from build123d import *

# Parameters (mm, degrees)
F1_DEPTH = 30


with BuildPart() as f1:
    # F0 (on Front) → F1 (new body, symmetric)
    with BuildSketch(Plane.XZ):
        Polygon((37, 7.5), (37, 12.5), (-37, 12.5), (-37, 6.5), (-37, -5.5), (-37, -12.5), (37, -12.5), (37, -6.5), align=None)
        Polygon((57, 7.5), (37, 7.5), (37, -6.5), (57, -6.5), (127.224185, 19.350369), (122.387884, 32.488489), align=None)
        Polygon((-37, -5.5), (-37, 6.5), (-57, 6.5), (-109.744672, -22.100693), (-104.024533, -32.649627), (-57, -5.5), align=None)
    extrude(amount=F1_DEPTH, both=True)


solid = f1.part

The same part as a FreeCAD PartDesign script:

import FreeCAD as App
import Part
import Sketcher

V = App.Vector
Q = App.Units.Quantity


def add_polygon(sketch, points):
    """Adds a closed chain of lines whose ends are joined by coincident constraints."""
    first, n = sketch.GeometryCount, len(points)
    for a, b in zip(points, points[1:] + points[:1]):
        sketch.addGeometry(Part.LineSegment(App.Vector(*a, 0), App.Vector(*b, 0)), False)
    for i in range(n):
        sketch.addConstraint(Sketcher.Constraint("Coincident", first + i, 2, first + (i + 1) % n, 1))

doc = App.newDocument("Part")
body = doc.addObject("PartDesign::Body", "Body")

# Sketch on XZ plane
sketch1 = body.newObject("Sketcher::SketchObject", "Sketch")
sketch1.AttachmentSupport = (doc.getObject("XZ_Plane"), [""])
sketch1.MapMode = "FlatFace"
add_polygon(sketch1, [(37, 12.5), (-37, 12.5), (-37, 6.5), (-57, 6.5), (-109.744672, -22.100693), (-104.024533, -32.649627), (-57, -5.5), (-37, -5.5), (-37, -12.5), (37, -12.5), (37, -6.5), (57, -6.5), (127.224185, 19.350369), (122.387884, 32.488489), (57, 7.5), (37, 7.5)])  # lines 0-15
sketch1.addConstraint([
    Sketcher.Constraint("Horizontal", 0),
    Sketcher.Constraint("Vertical", 1),
    Sketcher.Constraint("Horizontal", 2),
    Sketcher.Constraint("Horizontal", 6),
    Sketcher.Constraint("Vertical", 7),
    Sketcher.Constraint("Horizontal", 8),
    Sketcher.Constraint("Vertical", 9),
    Sketcher.Constraint("Horizontal", 10),
    Sketcher.Constraint("Horizontal", 14),
    Sketcher.Constraint("Vertical", 15),
    Sketcher.Constraint("Symmetric", 0, 2, 8, 2, -1, 1),
    Sketcher.Constraint("Symmetric", 2, 2, 10, 2, -1, 1),
    Sketcher.Constraint("Perpendicular", 3, 4),
    Sketcher.Constraint("Perpendicular", 11, 12),
    Sketcher.Constraint("Vertical", 2, 2, 5, 2),
    Sketcher.Constraint("Vertical", 1, 2, 6, 2),
    Sketcher.Constraint("Vertical", 10, 2, 13, 2),
    Sketcher.Constraint("Vertical", 9, 2, 14, 2),
    Sketcher.Constraint("DistanceX", 0, 2, 0, 1, 74.0),
    Sketcher.Constraint("DistanceX", 2, 2, 2, 1, 20.0),
    Sketcher.Constraint("DistanceY", 1, 2, 1, 1, 6.0),
    Sketcher.Constraint("DistanceY", 7, 2, 7, 1, 7.0),
    Sketcher.Constraint("DistanceY", 15, 1, 15, 2, 5.0),
    Sketcher.Constraint("Angle", 5, Q("30 deg")),
    Sketcher.Constraint("Distance", 3, 60.000001),
    Sketcher.Constraint("Distance", 4, 12.0),
    Sketcher.Constraint("Distance", 12, 14.0),
    Sketcher.Constraint("Distance", 13, 70.0),
    Sketcher.Constraint("DistanceY", 5, 2, 2, 2, 12.0),
    Sketcher.Constraint("DistanceX", 12, 2, 11, 2, 4.836301),
])
pad1 = body.newObject("PartDesign::Pad", "Pad")
pad1.Profile = sketch1
pad1.Length = 60
pad1.Midplane = True

doc.recompute()
